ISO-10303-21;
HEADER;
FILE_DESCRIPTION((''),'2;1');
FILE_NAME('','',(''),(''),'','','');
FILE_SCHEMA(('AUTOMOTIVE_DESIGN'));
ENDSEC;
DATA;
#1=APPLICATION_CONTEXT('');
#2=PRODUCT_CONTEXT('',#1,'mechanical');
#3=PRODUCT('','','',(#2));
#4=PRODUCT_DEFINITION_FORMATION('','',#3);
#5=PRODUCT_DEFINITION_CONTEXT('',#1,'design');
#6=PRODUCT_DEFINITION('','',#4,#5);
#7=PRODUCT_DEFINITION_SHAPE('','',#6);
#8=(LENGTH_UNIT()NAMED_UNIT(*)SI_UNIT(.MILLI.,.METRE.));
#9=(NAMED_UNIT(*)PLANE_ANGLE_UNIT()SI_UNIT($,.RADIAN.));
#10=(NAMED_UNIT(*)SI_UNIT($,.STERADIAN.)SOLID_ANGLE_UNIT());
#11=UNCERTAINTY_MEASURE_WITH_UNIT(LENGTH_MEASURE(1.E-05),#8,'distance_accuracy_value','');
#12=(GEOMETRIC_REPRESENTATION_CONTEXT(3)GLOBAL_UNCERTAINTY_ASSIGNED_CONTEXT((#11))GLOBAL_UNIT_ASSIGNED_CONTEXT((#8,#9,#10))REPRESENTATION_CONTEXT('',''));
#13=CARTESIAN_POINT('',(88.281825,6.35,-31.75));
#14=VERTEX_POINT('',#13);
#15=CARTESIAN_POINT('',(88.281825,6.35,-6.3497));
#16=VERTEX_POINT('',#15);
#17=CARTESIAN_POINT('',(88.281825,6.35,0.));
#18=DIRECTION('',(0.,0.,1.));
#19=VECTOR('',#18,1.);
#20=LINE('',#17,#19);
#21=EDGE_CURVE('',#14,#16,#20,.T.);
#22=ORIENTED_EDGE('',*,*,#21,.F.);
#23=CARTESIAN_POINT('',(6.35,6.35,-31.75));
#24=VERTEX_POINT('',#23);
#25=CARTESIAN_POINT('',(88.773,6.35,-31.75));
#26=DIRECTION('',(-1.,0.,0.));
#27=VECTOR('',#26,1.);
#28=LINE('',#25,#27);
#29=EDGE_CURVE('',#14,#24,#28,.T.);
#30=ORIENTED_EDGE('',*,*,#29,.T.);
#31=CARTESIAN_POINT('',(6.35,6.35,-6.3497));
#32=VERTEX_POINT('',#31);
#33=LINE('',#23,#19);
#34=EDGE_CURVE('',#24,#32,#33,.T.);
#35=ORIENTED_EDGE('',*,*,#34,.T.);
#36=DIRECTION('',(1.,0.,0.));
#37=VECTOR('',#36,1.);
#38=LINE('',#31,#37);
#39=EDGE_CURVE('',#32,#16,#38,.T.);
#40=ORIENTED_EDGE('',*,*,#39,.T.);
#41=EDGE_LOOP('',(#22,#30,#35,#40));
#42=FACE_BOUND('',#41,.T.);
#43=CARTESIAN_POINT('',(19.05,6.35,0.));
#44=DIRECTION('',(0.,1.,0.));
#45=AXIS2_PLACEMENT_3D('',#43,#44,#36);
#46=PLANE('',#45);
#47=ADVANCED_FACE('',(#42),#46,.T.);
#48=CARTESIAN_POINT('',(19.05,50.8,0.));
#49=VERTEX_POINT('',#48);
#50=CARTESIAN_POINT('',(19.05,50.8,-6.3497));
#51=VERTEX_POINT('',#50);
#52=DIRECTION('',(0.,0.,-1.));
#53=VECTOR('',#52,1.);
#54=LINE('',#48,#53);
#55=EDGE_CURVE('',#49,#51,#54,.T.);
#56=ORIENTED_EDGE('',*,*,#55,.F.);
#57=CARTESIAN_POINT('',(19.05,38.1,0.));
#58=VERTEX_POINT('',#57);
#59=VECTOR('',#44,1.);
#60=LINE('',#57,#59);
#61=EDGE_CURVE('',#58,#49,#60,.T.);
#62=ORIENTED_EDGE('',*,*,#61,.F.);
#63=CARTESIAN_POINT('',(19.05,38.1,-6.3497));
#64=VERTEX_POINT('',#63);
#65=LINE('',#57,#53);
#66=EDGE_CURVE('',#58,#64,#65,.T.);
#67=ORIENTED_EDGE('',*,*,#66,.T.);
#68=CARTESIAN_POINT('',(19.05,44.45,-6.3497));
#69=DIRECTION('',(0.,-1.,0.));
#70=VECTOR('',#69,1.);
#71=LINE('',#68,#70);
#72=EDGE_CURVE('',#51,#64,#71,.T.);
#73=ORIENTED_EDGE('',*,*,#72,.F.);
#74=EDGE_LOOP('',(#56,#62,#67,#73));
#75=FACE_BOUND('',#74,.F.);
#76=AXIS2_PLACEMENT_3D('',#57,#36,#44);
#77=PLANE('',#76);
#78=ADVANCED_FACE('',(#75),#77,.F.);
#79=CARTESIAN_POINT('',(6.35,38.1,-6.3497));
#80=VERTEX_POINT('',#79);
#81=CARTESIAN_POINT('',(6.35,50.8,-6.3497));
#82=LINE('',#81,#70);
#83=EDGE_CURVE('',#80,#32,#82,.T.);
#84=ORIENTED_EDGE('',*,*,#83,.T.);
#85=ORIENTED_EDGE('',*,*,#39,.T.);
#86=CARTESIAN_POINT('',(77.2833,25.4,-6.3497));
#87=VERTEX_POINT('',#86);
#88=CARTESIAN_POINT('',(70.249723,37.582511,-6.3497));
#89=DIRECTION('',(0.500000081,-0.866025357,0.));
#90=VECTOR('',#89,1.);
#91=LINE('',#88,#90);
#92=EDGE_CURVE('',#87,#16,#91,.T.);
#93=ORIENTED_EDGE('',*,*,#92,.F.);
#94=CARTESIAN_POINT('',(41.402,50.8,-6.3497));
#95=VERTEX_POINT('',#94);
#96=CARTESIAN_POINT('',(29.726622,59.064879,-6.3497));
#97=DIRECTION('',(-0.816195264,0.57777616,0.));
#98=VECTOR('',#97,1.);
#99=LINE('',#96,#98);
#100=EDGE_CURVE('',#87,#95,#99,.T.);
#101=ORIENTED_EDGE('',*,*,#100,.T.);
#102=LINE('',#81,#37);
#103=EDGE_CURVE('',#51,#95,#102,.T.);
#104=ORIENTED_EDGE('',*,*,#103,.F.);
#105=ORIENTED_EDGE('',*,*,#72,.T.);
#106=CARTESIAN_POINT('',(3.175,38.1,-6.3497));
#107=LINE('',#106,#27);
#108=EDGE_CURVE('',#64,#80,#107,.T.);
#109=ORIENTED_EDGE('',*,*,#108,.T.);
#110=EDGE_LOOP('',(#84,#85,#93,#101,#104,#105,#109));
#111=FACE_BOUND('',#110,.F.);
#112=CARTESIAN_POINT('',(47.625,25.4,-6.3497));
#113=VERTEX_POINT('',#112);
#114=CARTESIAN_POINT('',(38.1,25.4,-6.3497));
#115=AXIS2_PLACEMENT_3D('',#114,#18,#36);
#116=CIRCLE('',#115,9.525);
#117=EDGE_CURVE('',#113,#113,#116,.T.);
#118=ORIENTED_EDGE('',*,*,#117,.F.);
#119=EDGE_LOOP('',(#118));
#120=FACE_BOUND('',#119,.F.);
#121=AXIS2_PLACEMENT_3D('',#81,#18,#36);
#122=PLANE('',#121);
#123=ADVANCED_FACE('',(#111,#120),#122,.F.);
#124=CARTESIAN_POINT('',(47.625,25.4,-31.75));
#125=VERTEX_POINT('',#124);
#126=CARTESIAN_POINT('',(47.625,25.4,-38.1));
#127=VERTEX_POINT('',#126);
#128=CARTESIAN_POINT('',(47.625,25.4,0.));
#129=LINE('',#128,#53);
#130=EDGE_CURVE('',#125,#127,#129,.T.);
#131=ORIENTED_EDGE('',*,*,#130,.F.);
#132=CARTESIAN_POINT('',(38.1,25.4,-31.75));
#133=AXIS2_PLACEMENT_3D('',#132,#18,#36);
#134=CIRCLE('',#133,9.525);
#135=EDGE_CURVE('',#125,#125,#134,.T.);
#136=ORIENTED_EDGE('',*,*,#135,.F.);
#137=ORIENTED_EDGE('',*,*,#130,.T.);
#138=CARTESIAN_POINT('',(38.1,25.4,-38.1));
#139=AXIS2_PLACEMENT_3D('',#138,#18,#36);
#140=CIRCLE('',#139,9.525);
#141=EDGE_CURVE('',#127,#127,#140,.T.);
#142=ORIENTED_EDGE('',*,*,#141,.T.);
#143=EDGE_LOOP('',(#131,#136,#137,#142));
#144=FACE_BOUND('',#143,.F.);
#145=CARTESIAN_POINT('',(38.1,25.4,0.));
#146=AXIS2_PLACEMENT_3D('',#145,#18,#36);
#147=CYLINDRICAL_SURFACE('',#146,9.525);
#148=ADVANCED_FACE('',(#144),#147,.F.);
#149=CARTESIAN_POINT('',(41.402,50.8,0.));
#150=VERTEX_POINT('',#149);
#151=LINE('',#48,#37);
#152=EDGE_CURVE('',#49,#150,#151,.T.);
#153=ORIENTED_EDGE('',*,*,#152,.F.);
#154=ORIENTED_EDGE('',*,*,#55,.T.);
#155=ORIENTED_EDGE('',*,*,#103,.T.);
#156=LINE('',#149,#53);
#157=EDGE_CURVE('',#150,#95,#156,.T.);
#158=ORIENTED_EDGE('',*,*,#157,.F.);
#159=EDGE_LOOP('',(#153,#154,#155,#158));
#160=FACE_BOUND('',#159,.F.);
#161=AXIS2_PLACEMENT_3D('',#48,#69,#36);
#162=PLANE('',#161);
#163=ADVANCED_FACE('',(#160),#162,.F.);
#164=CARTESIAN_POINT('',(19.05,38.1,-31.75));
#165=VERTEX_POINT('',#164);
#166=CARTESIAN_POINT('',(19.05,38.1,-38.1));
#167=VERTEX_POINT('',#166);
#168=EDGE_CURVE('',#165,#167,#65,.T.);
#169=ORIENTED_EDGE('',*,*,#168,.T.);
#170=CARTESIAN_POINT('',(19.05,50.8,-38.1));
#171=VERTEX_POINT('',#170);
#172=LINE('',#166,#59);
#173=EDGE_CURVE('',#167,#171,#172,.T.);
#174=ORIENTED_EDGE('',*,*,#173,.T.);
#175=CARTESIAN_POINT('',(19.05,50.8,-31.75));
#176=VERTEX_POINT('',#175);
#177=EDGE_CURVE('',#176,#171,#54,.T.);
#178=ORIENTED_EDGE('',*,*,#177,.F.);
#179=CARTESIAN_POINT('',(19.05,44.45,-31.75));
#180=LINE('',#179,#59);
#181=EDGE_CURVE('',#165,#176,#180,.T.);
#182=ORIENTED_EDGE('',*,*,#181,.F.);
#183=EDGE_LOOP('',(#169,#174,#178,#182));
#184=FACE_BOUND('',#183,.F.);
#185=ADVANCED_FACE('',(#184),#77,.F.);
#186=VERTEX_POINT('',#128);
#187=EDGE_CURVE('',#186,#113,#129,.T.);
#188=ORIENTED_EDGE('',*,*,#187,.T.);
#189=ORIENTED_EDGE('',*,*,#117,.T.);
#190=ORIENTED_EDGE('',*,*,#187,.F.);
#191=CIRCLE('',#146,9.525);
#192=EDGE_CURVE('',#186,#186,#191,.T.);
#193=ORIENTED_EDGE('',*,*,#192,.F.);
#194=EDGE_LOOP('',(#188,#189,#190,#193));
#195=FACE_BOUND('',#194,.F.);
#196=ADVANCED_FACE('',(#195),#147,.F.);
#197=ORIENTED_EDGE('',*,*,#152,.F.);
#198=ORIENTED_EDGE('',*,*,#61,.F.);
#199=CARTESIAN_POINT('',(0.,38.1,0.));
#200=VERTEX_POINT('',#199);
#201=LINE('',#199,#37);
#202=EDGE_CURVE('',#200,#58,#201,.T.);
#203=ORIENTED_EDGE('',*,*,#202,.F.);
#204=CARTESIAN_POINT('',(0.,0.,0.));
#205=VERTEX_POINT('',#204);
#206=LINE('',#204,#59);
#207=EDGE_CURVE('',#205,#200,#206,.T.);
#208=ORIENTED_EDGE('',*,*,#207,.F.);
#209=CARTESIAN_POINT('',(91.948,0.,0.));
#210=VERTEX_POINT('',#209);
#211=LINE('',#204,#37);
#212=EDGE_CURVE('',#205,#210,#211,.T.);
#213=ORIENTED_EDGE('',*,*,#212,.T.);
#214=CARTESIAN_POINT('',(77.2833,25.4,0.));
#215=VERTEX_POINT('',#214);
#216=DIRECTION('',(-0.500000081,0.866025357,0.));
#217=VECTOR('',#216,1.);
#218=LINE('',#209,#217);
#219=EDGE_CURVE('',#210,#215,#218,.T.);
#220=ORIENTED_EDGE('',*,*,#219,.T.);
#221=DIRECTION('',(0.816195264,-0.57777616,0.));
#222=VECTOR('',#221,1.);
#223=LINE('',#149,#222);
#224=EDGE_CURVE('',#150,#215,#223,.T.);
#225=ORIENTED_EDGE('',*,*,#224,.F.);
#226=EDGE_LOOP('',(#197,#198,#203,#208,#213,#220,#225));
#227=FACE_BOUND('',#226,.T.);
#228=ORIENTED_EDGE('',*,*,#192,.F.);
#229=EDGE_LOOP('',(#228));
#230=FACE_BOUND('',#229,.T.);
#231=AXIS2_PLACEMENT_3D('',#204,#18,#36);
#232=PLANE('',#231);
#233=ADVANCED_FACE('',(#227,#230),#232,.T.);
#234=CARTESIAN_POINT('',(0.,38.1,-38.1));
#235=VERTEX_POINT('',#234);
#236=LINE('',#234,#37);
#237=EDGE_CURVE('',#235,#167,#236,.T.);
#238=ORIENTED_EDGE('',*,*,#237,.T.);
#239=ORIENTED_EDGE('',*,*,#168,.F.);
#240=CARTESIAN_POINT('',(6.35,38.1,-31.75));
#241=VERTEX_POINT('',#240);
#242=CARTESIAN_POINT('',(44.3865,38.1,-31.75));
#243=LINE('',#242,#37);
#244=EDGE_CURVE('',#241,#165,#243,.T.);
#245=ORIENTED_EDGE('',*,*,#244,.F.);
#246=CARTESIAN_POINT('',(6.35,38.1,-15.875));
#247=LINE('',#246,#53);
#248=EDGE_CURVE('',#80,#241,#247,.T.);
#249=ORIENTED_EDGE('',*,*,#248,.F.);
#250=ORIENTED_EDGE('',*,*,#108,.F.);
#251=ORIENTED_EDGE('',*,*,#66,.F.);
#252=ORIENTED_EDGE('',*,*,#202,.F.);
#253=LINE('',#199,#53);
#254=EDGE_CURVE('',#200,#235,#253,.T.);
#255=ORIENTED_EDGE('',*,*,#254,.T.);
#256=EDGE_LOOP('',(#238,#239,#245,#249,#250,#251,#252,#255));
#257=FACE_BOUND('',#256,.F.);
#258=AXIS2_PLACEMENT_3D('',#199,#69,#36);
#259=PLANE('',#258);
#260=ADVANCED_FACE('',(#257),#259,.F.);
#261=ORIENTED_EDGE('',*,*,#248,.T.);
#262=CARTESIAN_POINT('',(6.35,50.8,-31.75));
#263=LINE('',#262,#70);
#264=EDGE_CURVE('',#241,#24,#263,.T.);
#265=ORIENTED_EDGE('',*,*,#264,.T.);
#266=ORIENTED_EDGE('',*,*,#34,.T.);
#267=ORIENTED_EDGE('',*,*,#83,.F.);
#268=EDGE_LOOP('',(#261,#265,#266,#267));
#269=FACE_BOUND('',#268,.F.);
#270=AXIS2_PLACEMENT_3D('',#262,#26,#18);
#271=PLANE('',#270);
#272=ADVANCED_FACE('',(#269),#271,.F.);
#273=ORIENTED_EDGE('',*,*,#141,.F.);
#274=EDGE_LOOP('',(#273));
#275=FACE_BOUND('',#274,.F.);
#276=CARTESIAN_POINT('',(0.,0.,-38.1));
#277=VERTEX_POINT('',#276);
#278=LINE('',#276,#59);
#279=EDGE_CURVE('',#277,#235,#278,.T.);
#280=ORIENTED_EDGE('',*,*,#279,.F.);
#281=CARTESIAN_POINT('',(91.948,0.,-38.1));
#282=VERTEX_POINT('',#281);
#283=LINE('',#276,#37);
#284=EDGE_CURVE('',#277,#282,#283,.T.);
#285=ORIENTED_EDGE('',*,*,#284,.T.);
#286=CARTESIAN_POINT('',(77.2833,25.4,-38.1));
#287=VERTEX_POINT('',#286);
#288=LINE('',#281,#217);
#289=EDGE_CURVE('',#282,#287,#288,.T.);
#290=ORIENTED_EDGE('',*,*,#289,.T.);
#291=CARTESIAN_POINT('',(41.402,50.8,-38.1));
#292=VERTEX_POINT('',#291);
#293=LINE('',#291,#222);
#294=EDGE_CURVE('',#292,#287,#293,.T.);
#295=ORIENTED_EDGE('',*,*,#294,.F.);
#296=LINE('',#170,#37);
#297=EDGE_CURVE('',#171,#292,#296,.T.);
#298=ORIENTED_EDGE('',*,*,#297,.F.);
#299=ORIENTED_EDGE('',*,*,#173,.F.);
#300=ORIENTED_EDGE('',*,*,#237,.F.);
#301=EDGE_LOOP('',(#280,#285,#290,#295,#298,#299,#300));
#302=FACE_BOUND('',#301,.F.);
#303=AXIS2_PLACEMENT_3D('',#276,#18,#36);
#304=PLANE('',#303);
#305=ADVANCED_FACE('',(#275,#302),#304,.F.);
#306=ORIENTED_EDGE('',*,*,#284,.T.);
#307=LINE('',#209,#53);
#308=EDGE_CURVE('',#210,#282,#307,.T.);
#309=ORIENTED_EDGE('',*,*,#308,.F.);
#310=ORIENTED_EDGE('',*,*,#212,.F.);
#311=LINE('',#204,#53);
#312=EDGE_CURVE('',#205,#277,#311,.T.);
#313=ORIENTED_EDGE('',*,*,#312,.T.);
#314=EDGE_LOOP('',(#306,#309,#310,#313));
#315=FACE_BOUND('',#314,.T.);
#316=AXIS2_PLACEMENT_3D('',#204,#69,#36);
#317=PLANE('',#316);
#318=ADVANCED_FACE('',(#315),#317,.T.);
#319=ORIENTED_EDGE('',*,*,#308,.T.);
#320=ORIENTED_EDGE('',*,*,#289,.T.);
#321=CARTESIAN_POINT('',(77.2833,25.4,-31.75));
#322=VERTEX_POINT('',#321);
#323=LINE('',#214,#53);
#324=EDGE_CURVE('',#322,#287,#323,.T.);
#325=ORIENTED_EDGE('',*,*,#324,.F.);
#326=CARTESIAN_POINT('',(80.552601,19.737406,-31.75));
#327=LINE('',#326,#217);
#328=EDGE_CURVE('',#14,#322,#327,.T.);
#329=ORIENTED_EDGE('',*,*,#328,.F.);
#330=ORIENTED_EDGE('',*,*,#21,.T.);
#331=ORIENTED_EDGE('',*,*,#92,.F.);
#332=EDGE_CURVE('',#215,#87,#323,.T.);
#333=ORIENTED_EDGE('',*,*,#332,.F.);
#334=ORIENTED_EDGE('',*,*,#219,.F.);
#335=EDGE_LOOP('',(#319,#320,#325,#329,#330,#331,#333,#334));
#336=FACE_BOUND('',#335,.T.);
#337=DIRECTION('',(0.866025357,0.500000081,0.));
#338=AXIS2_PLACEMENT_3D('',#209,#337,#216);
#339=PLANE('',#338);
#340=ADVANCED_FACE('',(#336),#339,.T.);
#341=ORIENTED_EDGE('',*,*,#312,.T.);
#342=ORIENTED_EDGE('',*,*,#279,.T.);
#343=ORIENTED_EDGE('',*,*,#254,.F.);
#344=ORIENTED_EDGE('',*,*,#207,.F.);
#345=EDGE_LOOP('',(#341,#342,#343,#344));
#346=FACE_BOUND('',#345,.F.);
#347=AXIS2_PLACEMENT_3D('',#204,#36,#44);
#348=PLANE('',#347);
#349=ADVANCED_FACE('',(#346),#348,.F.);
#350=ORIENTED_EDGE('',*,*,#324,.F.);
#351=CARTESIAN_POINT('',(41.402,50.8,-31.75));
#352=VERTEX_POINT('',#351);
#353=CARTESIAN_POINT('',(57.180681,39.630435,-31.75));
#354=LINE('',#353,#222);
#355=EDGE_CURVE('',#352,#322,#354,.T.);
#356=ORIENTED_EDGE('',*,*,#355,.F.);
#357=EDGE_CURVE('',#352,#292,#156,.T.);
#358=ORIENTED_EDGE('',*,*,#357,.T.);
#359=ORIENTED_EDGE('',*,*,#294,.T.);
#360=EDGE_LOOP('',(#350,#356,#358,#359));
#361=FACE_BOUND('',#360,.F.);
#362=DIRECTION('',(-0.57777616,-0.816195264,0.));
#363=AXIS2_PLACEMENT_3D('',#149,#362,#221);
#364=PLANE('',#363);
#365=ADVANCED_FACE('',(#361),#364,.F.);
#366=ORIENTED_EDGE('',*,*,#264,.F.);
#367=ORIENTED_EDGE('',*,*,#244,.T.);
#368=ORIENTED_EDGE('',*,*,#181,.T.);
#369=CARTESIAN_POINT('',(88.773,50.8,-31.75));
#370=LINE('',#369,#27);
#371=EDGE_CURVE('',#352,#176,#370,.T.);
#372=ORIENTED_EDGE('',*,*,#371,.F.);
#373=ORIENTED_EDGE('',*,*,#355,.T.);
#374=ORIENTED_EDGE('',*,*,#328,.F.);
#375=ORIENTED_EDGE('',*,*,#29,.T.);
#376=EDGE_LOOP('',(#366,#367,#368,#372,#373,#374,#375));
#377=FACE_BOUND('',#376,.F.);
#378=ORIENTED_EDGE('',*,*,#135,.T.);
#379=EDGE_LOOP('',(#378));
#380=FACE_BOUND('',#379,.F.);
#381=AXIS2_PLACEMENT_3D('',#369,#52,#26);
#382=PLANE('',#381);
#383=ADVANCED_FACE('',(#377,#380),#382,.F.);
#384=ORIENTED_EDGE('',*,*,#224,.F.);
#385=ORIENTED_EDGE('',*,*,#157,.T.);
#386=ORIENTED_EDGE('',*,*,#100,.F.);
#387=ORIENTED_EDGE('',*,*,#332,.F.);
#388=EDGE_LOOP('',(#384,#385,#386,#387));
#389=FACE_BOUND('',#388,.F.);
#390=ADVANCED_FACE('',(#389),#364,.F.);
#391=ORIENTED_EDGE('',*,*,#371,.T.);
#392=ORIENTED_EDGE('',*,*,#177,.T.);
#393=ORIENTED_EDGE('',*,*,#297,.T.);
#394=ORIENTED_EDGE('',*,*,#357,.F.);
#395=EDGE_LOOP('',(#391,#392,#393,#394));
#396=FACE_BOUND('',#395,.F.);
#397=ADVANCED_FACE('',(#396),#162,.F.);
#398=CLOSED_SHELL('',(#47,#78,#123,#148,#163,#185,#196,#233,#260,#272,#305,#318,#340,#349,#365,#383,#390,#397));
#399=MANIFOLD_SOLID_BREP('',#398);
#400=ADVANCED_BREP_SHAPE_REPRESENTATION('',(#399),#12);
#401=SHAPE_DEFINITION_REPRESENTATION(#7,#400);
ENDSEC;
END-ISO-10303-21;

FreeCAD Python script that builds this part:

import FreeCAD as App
import Part
import Sketcher

V = App.Vector
Q = App.Units.Quantity

doc = App.newDocument("Part")
body = doc.addObject("PartDesign::Body", "Body")

# Sketch on XY plane
sketch1 = doc.addObject("Sketcher::SketchObject", "Sketch")
body.addObject(sketch1)
sketch1.AttachmentSupport = (doc.XY_Plane, [""])
sketch1.MapMode = "FlatFace"
sketch1.addGeometry(Part.LineSegment(V(0, 38, 0), V(0, 0, 0)), False)
sketch1.addGeometry(Part.LineSegment(V(0, 0, 0), V(92, 0, 0)), False)
sketch1.addGeometry(Part.LineSegment(V(92, 0, 0), V(77, 25, 0)), False)
sketch1.addGeometry(Part.LineSegment(V(77, 25, 0), V(41, 51, 0)), False)
sketch1.addGeometry(Part.LineSegment(V(41, 51, 0), V(19, 51, 0)), False)
sketch1.addGeometry(Part.LineSegment(V(19, 51, 0), V(19, 38, 0)), False)
sketch1.addGeometry(Part.LineSegment(V(19, 38, 0), V(0, 38, 0)), False)
sketch1.addGeometry(Part.Circle(V(38, 25, 0), V(0, 0, 1), 10), False)
sketch1.addConstraint(Sketcher.Constraint("Coincident", 0, 2, 1, 1))
sketch1.addConstraint(Sketcher.Constraint("Coincident", 1, 2, 2, 1))
sketch1.addConstraint(Sketcher.Constraint("Coincident", 2, 2, 3, 1))
sketch1.addConstraint(Sketcher.Constraint("Coincident", 3, 2, 4, 1))
sketch1.addConstraint(Sketcher.Constraint("Coincident", 4, 2, 5, 1))
sketch1.addConstraint(Sketcher.Constraint("Coincident", 5, 2, 6, 1))
sketch1.addConstraint(Sketcher.Constraint("Coincident", 6, 2, 0, 1))
sketch1.addConstraint(Sketcher.Constraint("Vertical", 0))
sketch1.addConstraint(Sketcher.Constraint("Horizontal", 1))
sketch1.addConstraint(Sketcher.Constraint("Horizontal", 4))
sketch1.addConstraint(Sketcher.Constraint("Vertical", 5))
sketch1.addConstraint(Sketcher.Constraint("Horizontal", 6))
sketch1.addConstraint(Sketcher.Constraint("Coincident", 0, 2, -1, 1))
sketch1.addConstraint(Sketcher.Constraint("Horizontal", 7, 3, 2, 2))
sketch1.addConstraint(Sketcher.Constraint("Diameter", 7, Q("0.75 in")))
sketch1.addConstraint(Sketcher.Constraint("DistanceY", 0, 2, 0, 1, Q("1.5 in")))
sketch1.addConstraint(Sketcher.Constraint("DistanceY", 5, 2, 5, 1, Q("0.5 in")))
sketch1.addConstraint(Sketcher.Constraint("DistanceX", 1, 1, 1, 2, Q("3.62 in")))
sketch1.addConstraint(Sketcher.Constraint("DistanceX", 4, 2, 4, 1, Q("0.88 in")))
sketch1.addConstraint(Sketcher.Constraint("DistanceX", 6, 2, 6, 1, Q("0.75 in")))
sketch1.addConstraint(Sketcher.Constraint("DistanceX", -1, 1, 7, 3, Q("1.5 in")))
sketch1.addConstraint(Sketcher.Constraint("DistanceY", 7, 3, 5, 2, Q("0.5 in")))
sketch1.addConstraint(Sketcher.Constraint("Angle", 2, Q("120 deg")))
pad1 = doc.addObject("PartDesign::Pad", "Pad")
body.addObject(pad1)
pad1.Profile = sketch1
pad1.Length = Q("1.5 in")
pad1.Reversed = True

# Sketch on XZ plane
sketch2 = doc.addObject("Sketcher::SketchObject", "Sketch001")
body.addObject(sketch2)
sketch2.AttachmentSupport = (doc.XZ_Plane, [""])
sketch2.MapMode = "FlatFace"
sketch2.AttachmentOffset = App.Placement(V(0, 0, -2 * 25.4), App.Rotation())
sketch2.addGeometry(Part.LineSegment(V(6, -6, 0), V(89, -6, 0)), False)
sketch2.addGeometry(Part.LineSegment(V(89, -6, 0), V(89, -32, 0)), False)
sketch2.addGeometry(Part.LineSegment(V(89, -32, 0), V(6, -32, 0)), False)
sketch2.addGeometry(Part.LineSegment(V(6, -32, 0), V(6, -6, 0)), False)
sketch2.addConstraint(Sketcher.Constraint("Coincident", 0, 2, 1, 1))
sketch2.addConstraint(Sketcher.Constraint("Coincident", 1, 2, 2, 1))
sketch2.addConstraint(Sketcher.Constraint("Coincident", 2, 2, 3, 1))
sketch2.addConstraint(Sketcher.Constraint("Coincident", 3, 2, 0, 1))
sketch2.addConstraint(Sketcher.Constraint("Horizontal", 0))
sketch2.addConstraint(Sketcher.Constraint("Vertical", 1))
sketch2.addConstraint(Sketcher.Constraint("Horizontal", 2))
sketch2.addConstraint(Sketcher.Constraint("Vertical", 3))
sketch2.addConstraint(Sketcher.Constraint("DistanceY", 1, 2, 1, 1, Q("1 in")))
sketch2.addConstraint(Sketcher.Constraint("DistanceX", 0, 1, 0, 2, Q("3.245 in")))
sketch2.addConstraint(Sketcher.Constraint("DistanceY", 0, 2, -1, 1, Q("0.25 in")))
sketch2.addConstraint(Sketcher.Constraint("DistanceX", -1, 1, 2, 2, Q("0.25 in")))
pocket1 = doc.addObject("PartDesign::Pocket", "Pocket")
body.addObject(pocket1)
pocket1.Profile = sketch2
pocket1.Length = Q("1.75 in")
pocket1.Reversed = True

doc.recompute()
